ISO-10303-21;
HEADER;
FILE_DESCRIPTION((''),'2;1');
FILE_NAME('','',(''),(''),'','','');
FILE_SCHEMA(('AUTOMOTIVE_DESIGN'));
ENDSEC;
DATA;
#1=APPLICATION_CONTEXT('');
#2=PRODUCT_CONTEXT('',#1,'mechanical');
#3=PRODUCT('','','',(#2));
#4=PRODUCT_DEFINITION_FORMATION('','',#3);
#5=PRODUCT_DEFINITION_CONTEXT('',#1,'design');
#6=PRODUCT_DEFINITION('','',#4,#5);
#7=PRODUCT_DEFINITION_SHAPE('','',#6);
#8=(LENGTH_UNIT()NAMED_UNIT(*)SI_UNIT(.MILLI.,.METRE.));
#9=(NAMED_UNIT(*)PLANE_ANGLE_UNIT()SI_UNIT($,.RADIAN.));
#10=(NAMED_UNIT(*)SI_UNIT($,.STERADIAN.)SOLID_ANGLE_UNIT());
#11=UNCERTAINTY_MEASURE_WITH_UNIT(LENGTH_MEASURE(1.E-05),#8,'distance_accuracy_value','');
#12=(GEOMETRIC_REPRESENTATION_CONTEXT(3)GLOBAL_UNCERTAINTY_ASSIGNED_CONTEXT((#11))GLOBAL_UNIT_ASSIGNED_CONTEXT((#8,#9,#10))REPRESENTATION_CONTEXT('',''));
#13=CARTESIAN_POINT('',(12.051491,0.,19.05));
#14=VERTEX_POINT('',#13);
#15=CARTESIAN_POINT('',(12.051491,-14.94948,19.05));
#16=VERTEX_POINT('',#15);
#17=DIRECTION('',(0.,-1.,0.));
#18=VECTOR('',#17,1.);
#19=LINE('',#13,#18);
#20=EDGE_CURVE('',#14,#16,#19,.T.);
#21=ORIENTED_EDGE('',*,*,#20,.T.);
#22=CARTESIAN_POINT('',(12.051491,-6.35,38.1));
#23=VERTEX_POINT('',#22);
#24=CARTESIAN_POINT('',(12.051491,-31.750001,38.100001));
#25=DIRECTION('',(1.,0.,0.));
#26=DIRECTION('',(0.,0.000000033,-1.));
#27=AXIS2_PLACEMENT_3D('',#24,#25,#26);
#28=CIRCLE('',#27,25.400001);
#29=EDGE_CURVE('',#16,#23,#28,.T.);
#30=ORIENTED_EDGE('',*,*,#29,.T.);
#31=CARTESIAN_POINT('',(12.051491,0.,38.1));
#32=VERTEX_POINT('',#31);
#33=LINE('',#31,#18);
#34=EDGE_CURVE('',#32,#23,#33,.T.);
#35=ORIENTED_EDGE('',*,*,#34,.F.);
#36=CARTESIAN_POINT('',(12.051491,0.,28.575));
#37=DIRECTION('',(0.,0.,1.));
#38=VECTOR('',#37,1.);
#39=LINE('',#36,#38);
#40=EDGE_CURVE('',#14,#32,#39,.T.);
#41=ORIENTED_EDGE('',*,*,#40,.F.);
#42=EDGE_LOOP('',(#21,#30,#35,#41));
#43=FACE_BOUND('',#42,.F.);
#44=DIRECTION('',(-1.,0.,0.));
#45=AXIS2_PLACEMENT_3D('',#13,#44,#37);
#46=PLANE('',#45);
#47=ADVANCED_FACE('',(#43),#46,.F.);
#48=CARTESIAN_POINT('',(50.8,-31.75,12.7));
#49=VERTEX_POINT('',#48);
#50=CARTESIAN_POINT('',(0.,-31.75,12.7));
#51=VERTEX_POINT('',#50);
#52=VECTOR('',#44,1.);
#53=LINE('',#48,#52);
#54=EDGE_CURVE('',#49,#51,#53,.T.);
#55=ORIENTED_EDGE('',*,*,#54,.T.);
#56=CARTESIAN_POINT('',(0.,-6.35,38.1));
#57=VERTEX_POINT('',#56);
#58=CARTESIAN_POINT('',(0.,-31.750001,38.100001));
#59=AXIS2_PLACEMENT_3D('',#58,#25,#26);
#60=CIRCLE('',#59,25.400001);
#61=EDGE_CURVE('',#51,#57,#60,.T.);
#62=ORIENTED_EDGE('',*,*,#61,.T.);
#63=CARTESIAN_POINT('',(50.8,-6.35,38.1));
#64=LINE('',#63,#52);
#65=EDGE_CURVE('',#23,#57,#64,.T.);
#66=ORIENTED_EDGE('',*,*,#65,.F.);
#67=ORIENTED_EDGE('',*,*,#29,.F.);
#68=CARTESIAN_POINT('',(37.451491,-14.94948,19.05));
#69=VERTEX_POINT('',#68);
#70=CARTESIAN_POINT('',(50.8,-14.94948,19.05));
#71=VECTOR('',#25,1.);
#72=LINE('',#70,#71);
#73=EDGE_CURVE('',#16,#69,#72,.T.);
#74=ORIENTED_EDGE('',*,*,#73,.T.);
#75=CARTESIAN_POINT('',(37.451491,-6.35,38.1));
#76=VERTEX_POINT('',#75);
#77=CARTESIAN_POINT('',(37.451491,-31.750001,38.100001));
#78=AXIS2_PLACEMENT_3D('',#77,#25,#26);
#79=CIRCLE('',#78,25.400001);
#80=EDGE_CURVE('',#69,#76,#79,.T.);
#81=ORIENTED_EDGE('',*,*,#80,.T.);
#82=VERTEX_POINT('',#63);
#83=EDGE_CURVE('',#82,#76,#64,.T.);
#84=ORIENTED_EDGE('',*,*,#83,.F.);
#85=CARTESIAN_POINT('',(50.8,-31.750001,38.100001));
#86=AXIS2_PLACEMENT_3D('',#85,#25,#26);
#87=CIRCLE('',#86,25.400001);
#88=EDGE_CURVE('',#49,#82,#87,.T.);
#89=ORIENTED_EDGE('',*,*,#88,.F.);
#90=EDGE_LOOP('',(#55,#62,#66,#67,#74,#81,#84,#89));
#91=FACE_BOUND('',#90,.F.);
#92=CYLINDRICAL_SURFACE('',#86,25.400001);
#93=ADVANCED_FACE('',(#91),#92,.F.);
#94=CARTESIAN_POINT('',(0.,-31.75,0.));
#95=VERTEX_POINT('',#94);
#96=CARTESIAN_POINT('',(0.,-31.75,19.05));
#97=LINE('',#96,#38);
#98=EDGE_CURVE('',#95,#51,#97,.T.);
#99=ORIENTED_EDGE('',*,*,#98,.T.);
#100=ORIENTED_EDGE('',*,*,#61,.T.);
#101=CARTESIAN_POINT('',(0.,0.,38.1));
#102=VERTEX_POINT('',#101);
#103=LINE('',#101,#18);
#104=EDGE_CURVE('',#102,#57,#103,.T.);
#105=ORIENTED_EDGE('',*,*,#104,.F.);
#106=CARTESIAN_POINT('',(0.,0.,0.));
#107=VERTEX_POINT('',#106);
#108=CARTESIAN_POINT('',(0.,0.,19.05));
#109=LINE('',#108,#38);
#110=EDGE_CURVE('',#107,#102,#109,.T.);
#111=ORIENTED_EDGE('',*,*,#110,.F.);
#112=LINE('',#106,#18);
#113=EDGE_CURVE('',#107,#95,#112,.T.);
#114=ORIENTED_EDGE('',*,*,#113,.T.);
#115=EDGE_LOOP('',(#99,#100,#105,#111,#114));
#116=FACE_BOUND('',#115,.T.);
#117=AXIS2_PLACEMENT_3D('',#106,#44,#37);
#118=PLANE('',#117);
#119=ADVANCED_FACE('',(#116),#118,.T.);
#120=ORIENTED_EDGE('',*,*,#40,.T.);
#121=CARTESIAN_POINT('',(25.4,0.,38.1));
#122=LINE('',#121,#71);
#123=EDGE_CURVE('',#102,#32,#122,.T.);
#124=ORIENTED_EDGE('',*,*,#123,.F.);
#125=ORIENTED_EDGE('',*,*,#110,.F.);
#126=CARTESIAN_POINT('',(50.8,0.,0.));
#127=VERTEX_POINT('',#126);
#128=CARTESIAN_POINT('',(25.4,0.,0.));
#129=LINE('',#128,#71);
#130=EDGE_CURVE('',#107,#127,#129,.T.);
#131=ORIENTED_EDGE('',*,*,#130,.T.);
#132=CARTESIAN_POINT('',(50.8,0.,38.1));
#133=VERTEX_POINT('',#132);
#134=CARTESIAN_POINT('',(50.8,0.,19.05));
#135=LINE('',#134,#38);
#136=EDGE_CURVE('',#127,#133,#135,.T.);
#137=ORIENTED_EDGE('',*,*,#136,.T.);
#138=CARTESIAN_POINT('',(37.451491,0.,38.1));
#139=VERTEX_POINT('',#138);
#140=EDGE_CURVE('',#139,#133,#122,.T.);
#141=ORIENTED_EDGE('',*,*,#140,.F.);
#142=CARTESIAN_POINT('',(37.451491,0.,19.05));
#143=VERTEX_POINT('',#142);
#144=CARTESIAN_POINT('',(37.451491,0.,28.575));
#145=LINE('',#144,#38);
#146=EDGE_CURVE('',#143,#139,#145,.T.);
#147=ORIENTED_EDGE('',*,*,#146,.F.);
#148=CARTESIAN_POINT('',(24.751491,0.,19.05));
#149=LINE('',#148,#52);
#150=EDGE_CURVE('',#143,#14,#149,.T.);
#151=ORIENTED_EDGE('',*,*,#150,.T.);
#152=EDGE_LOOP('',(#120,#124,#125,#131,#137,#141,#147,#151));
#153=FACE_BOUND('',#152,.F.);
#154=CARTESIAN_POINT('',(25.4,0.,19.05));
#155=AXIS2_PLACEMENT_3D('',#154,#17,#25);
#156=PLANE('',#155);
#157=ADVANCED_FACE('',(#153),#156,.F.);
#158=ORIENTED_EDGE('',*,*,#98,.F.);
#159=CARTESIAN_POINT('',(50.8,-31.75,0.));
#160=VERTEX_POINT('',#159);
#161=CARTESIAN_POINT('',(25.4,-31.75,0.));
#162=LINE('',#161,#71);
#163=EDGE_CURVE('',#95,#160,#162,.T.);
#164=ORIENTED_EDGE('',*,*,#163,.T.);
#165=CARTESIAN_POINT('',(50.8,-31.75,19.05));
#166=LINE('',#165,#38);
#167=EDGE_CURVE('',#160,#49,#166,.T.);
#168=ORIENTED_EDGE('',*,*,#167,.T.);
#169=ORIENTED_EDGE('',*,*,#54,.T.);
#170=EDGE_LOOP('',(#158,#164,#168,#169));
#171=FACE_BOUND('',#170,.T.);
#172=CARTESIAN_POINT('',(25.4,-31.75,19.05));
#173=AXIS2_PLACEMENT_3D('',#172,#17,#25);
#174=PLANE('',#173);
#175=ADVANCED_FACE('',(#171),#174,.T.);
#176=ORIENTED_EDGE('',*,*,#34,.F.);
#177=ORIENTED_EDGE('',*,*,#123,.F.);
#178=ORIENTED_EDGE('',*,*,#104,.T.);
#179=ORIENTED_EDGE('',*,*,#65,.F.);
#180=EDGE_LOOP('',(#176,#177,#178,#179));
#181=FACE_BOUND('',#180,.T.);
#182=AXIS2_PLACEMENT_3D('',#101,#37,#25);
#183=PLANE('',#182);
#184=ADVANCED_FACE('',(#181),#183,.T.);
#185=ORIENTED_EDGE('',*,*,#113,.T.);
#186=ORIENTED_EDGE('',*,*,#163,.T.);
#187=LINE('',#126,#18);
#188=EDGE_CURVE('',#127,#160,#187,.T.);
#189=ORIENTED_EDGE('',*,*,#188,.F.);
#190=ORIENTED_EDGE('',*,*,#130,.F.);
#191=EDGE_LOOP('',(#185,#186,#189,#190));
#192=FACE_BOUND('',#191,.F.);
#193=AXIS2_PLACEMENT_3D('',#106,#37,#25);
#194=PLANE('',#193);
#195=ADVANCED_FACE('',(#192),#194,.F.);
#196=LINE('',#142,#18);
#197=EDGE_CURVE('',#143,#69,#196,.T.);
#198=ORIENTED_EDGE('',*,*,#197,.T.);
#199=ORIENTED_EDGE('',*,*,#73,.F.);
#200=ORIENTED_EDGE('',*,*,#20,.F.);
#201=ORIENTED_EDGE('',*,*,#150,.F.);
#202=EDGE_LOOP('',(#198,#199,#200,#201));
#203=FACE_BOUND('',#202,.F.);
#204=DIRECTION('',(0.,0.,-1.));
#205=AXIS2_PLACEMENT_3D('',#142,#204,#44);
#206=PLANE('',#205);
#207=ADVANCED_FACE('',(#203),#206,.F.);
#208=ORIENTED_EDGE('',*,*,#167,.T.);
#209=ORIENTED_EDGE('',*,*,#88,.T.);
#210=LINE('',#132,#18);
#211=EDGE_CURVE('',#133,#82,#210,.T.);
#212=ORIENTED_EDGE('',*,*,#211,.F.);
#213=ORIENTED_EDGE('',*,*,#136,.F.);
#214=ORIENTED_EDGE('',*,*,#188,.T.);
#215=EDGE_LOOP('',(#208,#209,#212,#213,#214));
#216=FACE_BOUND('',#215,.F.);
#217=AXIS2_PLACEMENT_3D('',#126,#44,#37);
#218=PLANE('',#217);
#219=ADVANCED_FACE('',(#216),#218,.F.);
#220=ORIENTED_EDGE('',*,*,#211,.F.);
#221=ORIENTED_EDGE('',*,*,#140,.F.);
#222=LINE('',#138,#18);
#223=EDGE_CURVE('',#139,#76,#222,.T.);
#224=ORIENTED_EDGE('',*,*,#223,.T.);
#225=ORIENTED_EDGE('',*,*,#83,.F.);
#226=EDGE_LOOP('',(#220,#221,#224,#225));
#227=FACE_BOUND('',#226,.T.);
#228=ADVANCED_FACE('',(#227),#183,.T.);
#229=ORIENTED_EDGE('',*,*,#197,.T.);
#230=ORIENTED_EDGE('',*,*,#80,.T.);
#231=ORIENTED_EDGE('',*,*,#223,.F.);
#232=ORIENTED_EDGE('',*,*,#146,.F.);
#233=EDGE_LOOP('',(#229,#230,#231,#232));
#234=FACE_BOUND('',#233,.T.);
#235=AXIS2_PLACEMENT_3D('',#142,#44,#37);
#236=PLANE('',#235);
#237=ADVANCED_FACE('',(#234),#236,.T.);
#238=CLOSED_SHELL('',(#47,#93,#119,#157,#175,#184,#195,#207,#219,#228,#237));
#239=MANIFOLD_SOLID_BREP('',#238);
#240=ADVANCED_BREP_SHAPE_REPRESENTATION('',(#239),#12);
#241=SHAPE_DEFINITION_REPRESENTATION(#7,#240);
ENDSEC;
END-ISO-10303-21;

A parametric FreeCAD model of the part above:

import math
import FreeCAD as App
import Part
import Sketcher

V = App.Vector
Q = App.Units.Quantity

doc = App.newDocument("Part")
params = doc.addObject("Spreadsheet::Sheet", "Params")
for row, (alias, value) in enumerate([
    ("sketch1_width", "2 in"),
    ("sketch1_height", "1.5 in"),
    ("pad1_length", "1.25 in"),
    ("sketch2_radius", "1 in"),
    ("pocket1_length", "2 in"),
    ("sketch3_width", "1 in"),
    ("sketch3_height", "0.75 in"),
    ("pocket2_length", "0.615 in"),
], start=1):
    params.set(f"A{row}", alias)
    params.set(f"B{row}", "=" + value)
    params.setAlias(f"B{row}", alias)

body = doc.addObject("PartDesign::Body", "Body")

# Sketch on XZ plane
sketch1 = body.newObject("Sketcher::SketchObject", "Sketch")
sketch1.AttachmentSupport = (doc.getObject("XZ_Plane"), [""])
sketch1.MapMode = "FlatFace"
sketch1.addGeometry(Part.LineSegment(V(0, 38, 0), V(0, 0, 0)), False)
sketch1.addGeometry(Part.LineSegment(V(0, 0, 0), V(51, 0, 0)), False)
sketch1.addGeometry(Part.LineSegment(V(51, 0, 0), V(51, 38, 0)), False)
sketch1.addGeometry(Part.LineSegment(V(51, 38, 0), V(0, 38, 0)), False)
sketch1.addConstraint(Sketcher.Constraint("Coincident", 0, 2, 1, 1))
sketch1.addConstraint(Sketcher.Constraint("Coincident", 1, 2, 2, 1))
sketch1.addConstraint(Sketcher.Constraint("Coincident", 2, 2, 3, 1))
sketch1.addConstraint(Sketcher.Constraint("Coincident", 3, 2, 0, 1))
sketch1.addConstraint(Sketcher.Constraint("Vertical", 0))
sketch1.addConstraint(Sketcher.Constraint("Horizontal", 1))
sketch1.addConstraint(Sketcher.Constraint("Vertical", 2))
sketch1.addConstraint(Sketcher.Constraint("Horizontal", 3))
sketch1.addConstraint(Sketcher.Constraint("Coincident", 0, 2, -1, 1))
sketch1.addConstraint(Sketcher.Constraint("DistanceX", 1, 1, 1, 2, Q("2 in")))
sketch1.addConstraint(Sketcher.Constraint("DistanceY", 0, 2, 0, 1, Q("1.5 in")))
sketch1.setExpression("Constraints[9]", "Params.sketch1_width")
sketch1.setExpression("Constraints[10]", "Params.sketch1_height")
pad1 = body.newObject("PartDesign::Pad", "Pad")
pad1.Profile = sketch1
pad1.setExpression("Length", "Params.pad1_length")

# Sketch on YZ plane
sketch2 = body.newObject("Sketcher::SketchObject", "Sketch001")
sketch2.AttachmentSupport = (doc.getObject("YZ_Plane"), [""])
sketch2.MapMode = "FlatFace"
sketch2.AttachmentOffset = App.Placement(V(0, 0, 2 * 25.4), App.Rotation())
sketch2.addGeometry(Part.LineSegment(V(-32, 38, 0), V(-32, 13, 0)), False)
sketch2.addGeometry(Part.ArcOfCircle(Part.Circle(V(-32, 38, 0), V(0, 0, 1), 25), math.radians(-90), math.radians(0)), False)
sketch2.addGeometry(Part.LineSegment(V(-6, 38, 0), V(-32, 38, 0)), False)
sketch2.addConstraint(Sketcher.Constraint("Coincident", 0, 2, 1, 1))
sketch2.addConstraint(Sketcher.Constraint("Coincident", 1, 2, 2, 1))
sketch2.addConstraint(Sketcher.Constraint("Coincident", 2, 2, 0, 1))
sketch2.addConstraint(Sketcher.Constraint("Vertical", 0))
sketch2.addConstraint(Sketcher.Constraint("Horizontal", 2))
sketch2.addConstraint(Sketcher.Constraint("Coincident", 2, 2, 1, 3))
sketch2.addConstraint(Sketcher.Constraint("Radius", 1, Q("1 in")))
sketch2.addConstraint(Sketcher.Constraint("DistanceY", -1, 1, 1, 3, Q("1.5 in")))
sketch2.addConstraint(Sketcher.Constraint("DistanceX", 1, 3, -1, 1, Q("1.25 in")))
sketch2.setExpression("Constraints[6]", "Params.sketch2_radius")
pocket1 = body.newObject("PartDesign::Pocket", "Pocket")
pocket1.Profile = sketch2
pocket1.setExpression("Length", "Params.pocket1_length")

# Sketch on XZ plane
sketch3 = body.newObject("Sketcher::SketchObject", "Sketch002")
sketch3.AttachmentSupport = (doc.getObject("XZ_Plane"), [""])
sketch3.MapMode = "FlatFace"
sketch3.addGeometry(Part.LineSegment(V(37, 38, 0), V(37, 19, 0)), False)
sketch3.addGeometry(Part.LineSegment(V(37, 19, 0), V(12, 19, 0)), False)
sketch3.addGeometry(Part.LineSegment(V(12, 19, 0), V(12, 38, 0)), False)
sketch3.addGeometry(Part.LineSegment(V(12, 38, 0), V(37, 38, 0)), False)
sketch3.addConstraint(Sketcher.Constraint("Coincident", 0, 2, 1, 1))
sketch3.addConstraint(Sketcher.Constraint("Coincident", 1, 2, 2, 1))
sketch3.addConstraint(Sketcher.Constraint("Coincident", 2, 2, 3, 1))
sketch3.addConstraint(Sketcher.Constraint("Coincident", 3, 2, 0, 1))
sketch3.addConstraint(Sketcher.Constraint("Vertical", 0))
sketch3.addConstraint(Sketcher.Constraint("Horizontal", 1))
sketch3.addConstraint(Sketcher.Constraint("Vertical", 2))
sketch3.addConstraint(Sketcher.Constraint("Horizontal", 3))
sketch3.addConstraint(Sketcher.Constraint("DistanceX", 1, 2, 1, 1, Q("1 in")))
sketch3.addConstraint(Sketcher.Constraint("DistanceY", 0, 2, 0, 1, Q("0.75 in")))
sketch3.addConstraint(Sketcher.Constraint("DistanceY", -1, 1, 2, 2, Q("1.5 in")))
sketch3.addConstraint(Sketcher.Constraint("DistanceX", -1, 1, 0, 2, 37.451491))
sketch3.setExpression("Constraints[8]", "Params.sketch3_width")
sketch3.setExpression("Constraints[9]", "Params.sketch3_height")
pocket2 = body.newObject("PartDesign::Pocket", "Pocket001")
pocket2.Profile = sketch3
pocket2.setExpression("Length", "Params.pocket2_length")
pocket2.Reversed = True

doc.recompute()
